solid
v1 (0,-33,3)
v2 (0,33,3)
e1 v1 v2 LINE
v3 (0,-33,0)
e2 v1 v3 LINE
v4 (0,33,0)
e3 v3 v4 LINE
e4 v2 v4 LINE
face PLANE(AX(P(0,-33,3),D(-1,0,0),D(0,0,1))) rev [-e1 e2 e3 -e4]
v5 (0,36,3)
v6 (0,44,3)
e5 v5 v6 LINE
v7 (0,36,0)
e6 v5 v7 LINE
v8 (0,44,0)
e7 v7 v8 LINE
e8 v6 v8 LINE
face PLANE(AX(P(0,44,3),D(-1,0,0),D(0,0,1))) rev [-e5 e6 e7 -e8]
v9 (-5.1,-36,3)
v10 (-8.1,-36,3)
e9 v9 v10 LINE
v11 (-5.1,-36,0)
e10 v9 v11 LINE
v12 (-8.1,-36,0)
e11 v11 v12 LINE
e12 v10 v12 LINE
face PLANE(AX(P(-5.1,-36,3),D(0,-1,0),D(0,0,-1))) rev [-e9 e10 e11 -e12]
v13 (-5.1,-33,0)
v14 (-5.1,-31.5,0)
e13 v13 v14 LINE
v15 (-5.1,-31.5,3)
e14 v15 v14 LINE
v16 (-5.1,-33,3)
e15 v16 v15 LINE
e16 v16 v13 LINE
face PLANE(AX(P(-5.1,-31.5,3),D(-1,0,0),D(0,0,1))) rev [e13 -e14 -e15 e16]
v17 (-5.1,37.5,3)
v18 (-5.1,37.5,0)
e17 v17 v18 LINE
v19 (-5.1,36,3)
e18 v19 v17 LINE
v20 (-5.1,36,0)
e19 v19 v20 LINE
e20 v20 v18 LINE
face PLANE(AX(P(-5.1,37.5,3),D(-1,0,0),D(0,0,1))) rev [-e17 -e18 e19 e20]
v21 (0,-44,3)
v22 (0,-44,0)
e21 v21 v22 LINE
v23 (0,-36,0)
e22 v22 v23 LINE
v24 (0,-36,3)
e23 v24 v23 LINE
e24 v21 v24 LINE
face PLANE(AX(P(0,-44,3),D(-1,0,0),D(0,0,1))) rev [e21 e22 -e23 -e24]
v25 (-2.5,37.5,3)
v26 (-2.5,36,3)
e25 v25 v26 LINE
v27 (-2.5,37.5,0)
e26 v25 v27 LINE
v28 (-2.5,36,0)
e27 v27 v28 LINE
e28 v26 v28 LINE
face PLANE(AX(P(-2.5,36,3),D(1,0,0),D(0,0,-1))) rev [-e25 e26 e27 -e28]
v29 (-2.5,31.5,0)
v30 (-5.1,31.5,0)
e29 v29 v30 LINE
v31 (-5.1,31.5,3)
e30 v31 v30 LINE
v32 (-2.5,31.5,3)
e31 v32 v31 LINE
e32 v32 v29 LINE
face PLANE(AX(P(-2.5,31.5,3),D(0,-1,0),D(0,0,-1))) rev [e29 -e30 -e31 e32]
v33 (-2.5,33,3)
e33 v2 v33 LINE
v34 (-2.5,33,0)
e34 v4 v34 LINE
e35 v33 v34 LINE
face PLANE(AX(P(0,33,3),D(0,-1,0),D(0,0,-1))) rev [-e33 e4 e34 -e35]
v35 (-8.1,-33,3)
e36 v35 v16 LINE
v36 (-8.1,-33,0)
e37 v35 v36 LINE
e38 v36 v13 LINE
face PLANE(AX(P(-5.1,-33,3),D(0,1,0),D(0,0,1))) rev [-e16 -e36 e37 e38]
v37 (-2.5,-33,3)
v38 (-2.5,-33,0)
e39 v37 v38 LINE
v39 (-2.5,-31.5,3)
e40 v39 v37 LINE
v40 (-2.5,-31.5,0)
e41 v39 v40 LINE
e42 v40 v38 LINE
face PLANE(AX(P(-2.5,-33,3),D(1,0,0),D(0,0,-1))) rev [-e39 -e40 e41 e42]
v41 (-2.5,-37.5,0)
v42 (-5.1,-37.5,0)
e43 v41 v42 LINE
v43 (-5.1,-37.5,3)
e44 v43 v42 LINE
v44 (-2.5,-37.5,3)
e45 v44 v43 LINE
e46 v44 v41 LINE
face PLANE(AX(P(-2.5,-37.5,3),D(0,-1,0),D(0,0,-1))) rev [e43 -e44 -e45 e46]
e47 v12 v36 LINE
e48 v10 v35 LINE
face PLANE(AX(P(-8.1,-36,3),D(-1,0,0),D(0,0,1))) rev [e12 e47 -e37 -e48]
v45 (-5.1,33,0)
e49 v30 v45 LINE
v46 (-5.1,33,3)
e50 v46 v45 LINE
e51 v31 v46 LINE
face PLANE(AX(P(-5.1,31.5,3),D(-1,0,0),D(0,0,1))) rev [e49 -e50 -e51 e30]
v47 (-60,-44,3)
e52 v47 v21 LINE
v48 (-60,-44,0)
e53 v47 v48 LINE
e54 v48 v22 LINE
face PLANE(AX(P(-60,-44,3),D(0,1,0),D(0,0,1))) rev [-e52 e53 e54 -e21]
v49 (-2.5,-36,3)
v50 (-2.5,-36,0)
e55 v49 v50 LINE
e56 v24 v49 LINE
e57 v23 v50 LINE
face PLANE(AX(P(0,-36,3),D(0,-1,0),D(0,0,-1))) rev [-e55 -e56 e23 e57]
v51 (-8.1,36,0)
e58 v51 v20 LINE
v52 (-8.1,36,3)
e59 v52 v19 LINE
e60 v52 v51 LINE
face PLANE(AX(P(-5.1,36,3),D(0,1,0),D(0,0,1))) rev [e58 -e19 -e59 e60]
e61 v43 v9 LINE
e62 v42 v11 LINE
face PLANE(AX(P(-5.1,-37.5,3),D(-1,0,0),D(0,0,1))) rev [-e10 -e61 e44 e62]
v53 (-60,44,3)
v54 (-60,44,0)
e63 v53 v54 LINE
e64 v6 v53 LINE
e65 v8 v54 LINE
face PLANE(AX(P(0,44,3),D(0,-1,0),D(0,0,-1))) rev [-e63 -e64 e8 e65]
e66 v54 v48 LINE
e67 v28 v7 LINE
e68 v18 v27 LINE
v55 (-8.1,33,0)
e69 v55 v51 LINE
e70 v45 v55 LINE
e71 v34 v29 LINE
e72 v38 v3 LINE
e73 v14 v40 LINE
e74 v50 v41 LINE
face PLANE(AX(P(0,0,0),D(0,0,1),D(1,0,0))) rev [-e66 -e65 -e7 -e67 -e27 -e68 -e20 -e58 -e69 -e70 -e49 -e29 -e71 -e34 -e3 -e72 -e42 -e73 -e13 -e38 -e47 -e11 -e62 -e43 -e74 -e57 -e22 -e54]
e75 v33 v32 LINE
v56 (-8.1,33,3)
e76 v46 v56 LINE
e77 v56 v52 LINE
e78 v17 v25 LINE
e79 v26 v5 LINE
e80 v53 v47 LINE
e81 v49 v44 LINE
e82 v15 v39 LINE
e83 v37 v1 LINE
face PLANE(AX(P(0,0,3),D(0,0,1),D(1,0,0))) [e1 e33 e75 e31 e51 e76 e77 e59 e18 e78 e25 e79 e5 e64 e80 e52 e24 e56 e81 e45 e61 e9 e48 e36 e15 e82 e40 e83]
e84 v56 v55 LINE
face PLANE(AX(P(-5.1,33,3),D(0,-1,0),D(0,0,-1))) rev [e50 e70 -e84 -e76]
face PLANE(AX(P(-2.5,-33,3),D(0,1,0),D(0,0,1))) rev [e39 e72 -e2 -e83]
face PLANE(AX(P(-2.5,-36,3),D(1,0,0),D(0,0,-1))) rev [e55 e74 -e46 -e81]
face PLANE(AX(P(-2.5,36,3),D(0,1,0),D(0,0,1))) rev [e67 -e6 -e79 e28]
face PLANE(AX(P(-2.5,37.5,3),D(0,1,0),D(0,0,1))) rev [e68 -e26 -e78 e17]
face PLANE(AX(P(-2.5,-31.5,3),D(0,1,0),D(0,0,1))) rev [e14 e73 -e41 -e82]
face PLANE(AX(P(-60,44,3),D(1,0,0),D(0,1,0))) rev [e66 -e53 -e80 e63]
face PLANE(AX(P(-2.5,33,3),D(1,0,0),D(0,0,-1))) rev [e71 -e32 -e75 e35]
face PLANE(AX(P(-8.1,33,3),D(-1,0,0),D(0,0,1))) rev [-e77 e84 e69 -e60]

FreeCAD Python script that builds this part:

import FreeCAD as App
import Part
import Sketcher
from FreeCAD import Vector

doc = App.newDocument("Part")
body = doc.addObject("PartDesign::Body", "Body")

# Sketch on XY plane
sketch1 = doc.addObject("Sketcher::SketchObject", "Sketch")
body.addObject(sketch1)
sketch1.AttachmentSupport = (doc.XY_Plane, [""])
sketch1.MapMode = "FlatFace"
sketch1.addGeometry(Part.LineSegment(Vector(0, 36, 0), Vector(0, 44, 0)), False)
sketch1.addGeometry(Part.LineSegment(Vector(0, 44, 0), Vector(-60, 44, 0)), False)
sketch1.addGeometry(Part.LineSegment(Vector(-60, 44, 0), Vector(-60, -44, 0)), False)
sketch1.addGeometry(Part.LineSegment(Vector(-60, -44, 0), Vector(0, -44, 0)), False)
sketch1.addGeometry(Part.LineSegment(Vector(0, -44, 0), Vector(0, -36, 0)), False)
sketch1.addGeometry(Part.LineSegment(Vector(0, -36, 0), Vector(-2.5, -36, 0)), False)
sketch1.addGeometry(Part.LineSegment(Vector(-2.5, -36, 0), Vector(-2.5, -37.5, 0)), False)
sketch1.addGeometry(Part.LineSegment(Vector(-2.5, -37.5, 0), Vector(-5.1, -37.5, 0)), False)
sketch1.addGeometry(Part.LineSegment(Vector(-5.1, -37.5, 0), Vector(-5.1, -36, 0)), False)
sketch1.addGeometry(Part.LineSegment(Vector(-5.1, -36, 0), Vector(-8.1, -36, 0)), False)
sketch1.addGeometry(Part.LineSegment(Vector(-8.1, -36, 0), Vector(-8.1, -33, 0)), False)
sketch1.addGeometry(Part.LineSegment(Vector(-8.1, -33, 0), Vector(-5.1, -33, 0)), False)
sketch1.addGeometry(Part.LineSegment(Vector(-5.1, -33, 0), Vector(-5.1, -31.5, 0)), False)
sketch1.addGeometry(Part.LineSegment(Vector(-5.1, -31.5, 0), Vector(-2.5, -31.5, 0)), False)
sketch1.addGeometry(Part.LineSegment(Vector(-2.5, -31.5, 0), Vector(-2.5, -33, 0)), False)
sketch1.addGeometry(Part.LineSegment(Vector(-2.5, -33, 0), Vector(0, -33, 0)), False)
sketch1.addGeometry(Part.LineSegment(Vector(0, -33, 0), Vector(0, 33, 0)), False)
sketch1.addGeometry(Part.LineSegment(Vector(0, 33, 0), Vector(-2.5, 33, 0)), False)
sketch1.addGeometry(Part.LineSegment(Vector(-2.5, 33, 0), Vector(-2.5, 31.5, 0)), False)
sketch1.addGeometry(Part.LineSegment(Vector(-2.5, 31.5, 0), Vector(-5.1, 31.5, 0)), False)
sketch1.addGeometry(Part.LineSegment(Vector(-5.1, 31.5, 0), Vector(-5.1, 33, 0)), False)
sketch1.addGeometry(Part.LineSegment(Vector(-5.1, 33, 0), Vector(-8.1, 33, 0)), False)
sketch1.addGeometry(Part.LineSegment(Vector(-8.1, 33, 0), Vector(-8.1, 36, 0)), False)
sketch1.addGeometry(Part.LineSegment(Vector(-8.1, 36, 0), Vector(-5.1, 36, 0)), False)
sketch1.addGeometry(Part.LineSegment(Vector(-5.1, 36, 0), Vector(-5.1, 37.5, 0)), False)
sketch1.addGeometry(Part.LineSegment(Vector(-5.1, 37.5, 0), Vector(-2.5, 37.5, 0)), False)
sketch1.addGeometry(Part.LineSegment(Vector(-2.5, 37.5, 0), Vector(-2.5, 36, 0)), False)
sketch1.addGeometry(Part.LineSegment(Vector(-2.5, 36, 0), Vector(0, 36, 0)), False)
sketch1.addConstraint(Sketcher.Constraint("Coincident", 0, 2, 1, 1))
sketch1.addConstraint(Sketcher.Constraint("Coincident", 1, 2, 2, 1))
sketch1.addConstraint(Sketcher.Constraint("Coincident", 2, 2, 3, 1))
sketch1.addConstraint(Sketcher.Constraint("Coincident", 3, 2, 4, 1))
sketch1.addConstraint(Sketcher.Constraint("Coincident", 4, 2, 5, 1))
sketch1.addConstraint(Sketcher.Constraint("Coincident", 5, 2, 6, 1))
sketch1.addConstraint(Sketcher.Constraint("Coincident", 6, 2, 7, 1))
sketch1.addConstraint(Sketcher.Constraint("Coincident", 7, 2, 8, 1))
sketch1.addConstraint(Sketcher.Constraint("Coincident", 8, 2, 9, 1))
sketch1.addConstraint(Sketcher.Constraint("Coincident", 9, 2, 10, 1))
sketch1.addConstraint(Sketcher.Constraint("Coincident", 10, 2, 11, 1))
sketch1.addConstraint(Sketcher.Constraint("Coincident", 11, 2, 12, 1))
sketch1.addConstraint(Sketcher.Constraint("Coincident", 12, 2, 13, 1))
sketch1.addConstraint(Sketcher.Constraint("Coincident", 13, 2, 14, 1))
sketch1.addConstraint(Sketcher.Constraint("Coincident", 14, 2, 15, 1))
sketch1.addConstraint(Sketcher.Constraint("Coincident", 15, 2, 16, 1))
sketch1.addConstraint(Sketcher.Constraint("Coincident", 16, 2, 17, 1))
sketch1.addConstraint(Sketcher.Constraint("Coincident", 17, 2, 18, 1))
sketch1.addConstraint(Sketcher.Constraint("Coincident", 18, 2, 19, 1))
sketch1.addConstraint(Sketcher.Constraint("Coincident", 19, 2, 20, 1))
sketch1.addConstraint(Sketcher.Constraint("Coincident", 20, 2, 21, 1))
sketch1.addConstraint(Sketcher.Constraint("Coincident", 21, 2, 22, 1))
sketch1.addConstraint(Sketcher.Constraint("Coincident", 22, 2, 23, 1))
sketch1.addConstraint(Sketcher.Constraint("Coincident", 23, 2, 24, 1))
sketch1.addConstraint(Sketcher.Constraint("Coincident", 24, 2, 25, 1))
sketch1.addConstraint(Sketcher.Constraint("Coincident", 25, 2, 26, 1))
sketch1.addConstraint(Sketcher.Constraint("Coincident", 26, 2, 27, 1))
sketch1.addConstraint(Sketcher.Constraint("Coincident", 27, 2, 0, 1))
sketch1.addConstraint(Sketcher.Constraint("Vertical", 0))
sketch1.addConstraint(Sketcher.Constraint("Horizontal", 1))
sketch1.addConstraint(Sketcher.Constraint("Vertical", 2))
sketch1.addConstraint(Sketcher.Constraint("Horizontal", 3))
sketch1.addConstraint(Sketcher.Constraint("Vertical", 4))
sketch1.addConstraint(Sketcher.Constraint("Horizontal", 5))
sketch1.addConstraint(Sketcher.Constraint("Vertical", 6))
sketch1.addConstraint(Sketcher.Constraint("Horizontal", 7))
sketch1.addConstraint(Sketcher.Constraint("Vertical", 8))
sketch1.addConstraint(Sketcher.Constraint("Horizontal", 9))
sketch1.addConstraint(Sketcher.Constraint("Vertical", 10))
sketch1.addConstraint(Sketcher.Constraint("Horizontal", 11))
sketch1.addConstraint(Sketcher.Constraint("Vertical", 12))
sketch1.addConstraint(Sketcher.Constraint("Horizontal", 13))
sketch1.addConstraint(Sketcher.Constraint("Vertical", 14))
sketch1.addConstraint(Sketcher.Constraint("Horizontal", 15))
sketch1.addConstraint(Sketcher.Constraint("Vertical", 16))
sketch1.addConstraint(Sketcher.Constraint("Horizontal", 17))
sketch1.addConstraint(Sketcher.Constraint("Vertical", 18))
sketch1.addConstraint(Sketcher.Constraint("Horizontal", 19))
sketch1.addConstraint(Sketcher.Constraint("Vertical", 20))
sketch1.addConstraint(Sketcher.Constraint("Horizontal", 21))
sketch1.addConstraint(Sketcher.Constraint("Vertical", 22))
sketch1.addConstraint(Sketcher.Constraint("Horizontal", 23))
sketch1.addConstraint(Sketcher.Constraint("Vertical", 24))
sketch1.addConstraint(Sketcher.Constraint("Horizontal", 25))
sketch1.addConstraint(Sketcher.Constraint("Vertical", 26))
sketch1.addConstraint(Sketcher.Constraint("Horizontal", 27))
sketch1.addConstraint(Sketcher.Constraint("Symmetric", 0, 2, 3, 2, -1, 1))
sketch1.addConstraint(Sketcher.Constraint("Symmetric", 15, 2, 16, 2, -1, 1))
sketch1.addConstraint(Sketcher.Constraint("Symmetric", 13, 2, 18, 2, -1))
sketch1.addConstraint(Sketcher.Constraint("Symmetric", 11, 2, 20, 2, -1))
sketch1.addConstraint(Sketcher.Constraint("Symmetric", 9, 2, 22, 2, -1))
sketch1.addConstraint(Sketcher.Constraint("Symmetric", 7, 2, 24, 2, -1))
sketch1.addConstraint(Sketcher.Constraint("Symmetric", 5, 2, 26, 2, -1))
sketch1.addConstraint(Sketcher.Constraint("PointOnObject", 0, 2, -2))
sketch1.addConstraint(Sketcher.Constraint("Horizontal", 5, 2, 8, 2))
sketch1.addConstraint(Sketcher.Constraint("Horizontal", 11, 2, 14, 2))
sketch1.addConstraint(Sketcher.Constraint("Vertical", 8, 2, 11, 2))
sketch1.addConstraint(Sketcher.Constraint("Vertical", 6, 2, 13, 2))
sketch1.addConstraint(Sketcher.Constraint("Equal", 23, 10))
sketch1.addConstraint(Sketcher.Constraint("Equal", 8, 12))
sketch1.addConstraint(Sketcher.Constraint("DistanceX", 1, 2, 1, 1, 60.0))
sketch1.addConstraint(Sketcher.Constraint("DistanceX", 9, 2, 9, 1, 3.0))
sketch1.addConstraint(Sketcher.Constraint("DistanceY", 0, 1, 0, 2, 8.0))
sketch1.addConstraint(Sketcher.Constraint("DistanceY", 2, 2, 2, 1, 88.0))
sketch1.addConstraint(Sketcher.Constraint("DistanceX", 5, 2, 5, 1, 2.5))
sketch1.addConstraint(Sketcher.Constraint("DistanceX", 7, 2, 7, 1, 2.6))
sketch1.addConstraint(Sketcher.Constraint("DistanceY", 6, 2, 6, 1, 1.5))
pad1 = doc.addObject("PartDesign::Pad", "Pad")
body.addObject(pad1)
pad1.Profile = sketch1
pad1.Length = 3

doc.recompute()
